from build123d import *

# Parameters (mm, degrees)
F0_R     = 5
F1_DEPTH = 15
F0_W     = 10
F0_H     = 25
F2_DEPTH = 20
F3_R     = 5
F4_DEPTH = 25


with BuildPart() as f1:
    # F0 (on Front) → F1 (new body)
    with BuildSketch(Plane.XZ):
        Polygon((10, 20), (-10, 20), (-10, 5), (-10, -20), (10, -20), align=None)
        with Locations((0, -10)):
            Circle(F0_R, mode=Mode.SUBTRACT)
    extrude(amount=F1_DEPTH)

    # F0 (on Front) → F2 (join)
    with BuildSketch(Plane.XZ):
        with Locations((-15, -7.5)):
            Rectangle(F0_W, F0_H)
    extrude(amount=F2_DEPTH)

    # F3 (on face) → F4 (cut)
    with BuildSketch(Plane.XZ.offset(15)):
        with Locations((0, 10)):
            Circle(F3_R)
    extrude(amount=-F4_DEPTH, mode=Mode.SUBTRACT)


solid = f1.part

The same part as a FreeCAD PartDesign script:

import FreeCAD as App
import Part
import Sketcher

V = App.Vector


def add_polygon(sketch, points):
    """Adds a closed chain of lines whose ends are joined by coincident constraints."""
    first, n = sketch.GeometryCount, len(points)
    for a, b in zip(points, points[1:] + points[:1]):
        sketch.addGeometry(Part.LineSegment(App.Vector(*a, 0), App.Vector(*b, 0)), False)
    for i in range(n):
        sketch.addConstraint(Sketcher.Constraint("Coincident", first + i, 2, first + (i + 1) % n, 1))

doc = App.newDocument("Part")
body = doc.addObject("PartDesign::Body", "Body")

sketch1 = body.newObject("Sketcher::SketchObject", "Sketch")
sketch1.AttachmentSupport = (doc.getObject("XZ_Plane"), [""])
sketch1.MapMode = "FlatFace"
add_polygon(sketch1, [(10, 20), (-10, 20), (-10, -20), (10, -20)])
sketch1.addGeometry(Part.Circle(V(0, -10, 0), V(0, 0, 1), 5), False)
sketch1.addConstraint([
    Sketcher.Constraint("Horizontal", 0),
    Sketcher.Constraint("Vertical", 1),
    Sketcher.Constraint("Horizontal", 2),
    Sketcher.Constraint("Vertical", 3),
    Sketcher.Constraint("Symmetric", 0, 2, 2, 2, -1, 1),
    Sketcher.Constraint("PointOnObject", 4, 3, -2),
    Sketcher.Constraint("Diameter", 4, 10.0),
    Sketcher.Constraint("DistanceX", 0, 2, 0, 1, 20.0),
    Sketcher.Constraint("DistanceY", 1, 2, 1, 1, 40.0),
    Sketcher.Constraint("DistanceY", 4, 3, -1, 1, 10.0),
])
pad1 = body.newObject("PartDesign::Pad", "Pad")
pad1.Profile = sketch1
pad1.Length = 15

sketch2 = body.newObject("Sketcher::SketchObject", "Sketch001")
sketch2.AttachmentSupport = (doc.getObject("XZ_Plane"), [""])
sketch2.MapMode = "FlatFace"
add_polygon(sketch2, [(-20, 5), (-20, -20), (-10, -20), (-10, 5)])
sketch2.addConstraint([
    Sketcher.Constraint("Vertical", 0),
    Sketcher.Constraint("Horizontal", 1),
    Sketcher.Constraint("Vertical", 2),
    Sketcher.Constraint("Horizontal", 3),
    Sketcher.Constraint("DistanceX", 1, 1, 1, 2, 10.0),
    Sketcher.Constraint("DistanceY", 0, 2, 0, 1, 25.0),
    Sketcher.Constraint("DistanceX", 0, 2, -1, 1, 20.0),
    Sketcher.Constraint("DistanceY", 0, 2, -1, 1, 20.0),
])
pad2 = body.newObject("PartDesign::Pad", "Pad001")
pad2.Profile = sketch2
pad2.Length = 20

sketch3 = body.newObject("Sketcher::SketchObject", "Sketch002")
sketch3.AttachmentSupport = (doc.getObject("XZ_Plane"), [""])
sketch3.MapMode = "FlatFace"
sketch3.AttachmentOffset = App.Placement(V(0, 0, 15), App.Rotation())
sketch3.addGeometry(Part.Circle(V(0, 10, 0), V(0, 0, 1), 5), False)
sketch3.addConstraint([
    Sketcher.Constraint("PointOnObject", 0, 3, -2),
    Sketcher.Constraint("Diameter", 0, 10.0),
    Sketcher.Constraint("DistanceY", -1, 1, 0, 3, 10.0),
])
pocket1 = body.newObject("PartDesign::Pocket", "Pocket")
pocket1.Profile = sketch3
pocket1.Length = 25

doc.recompute()
